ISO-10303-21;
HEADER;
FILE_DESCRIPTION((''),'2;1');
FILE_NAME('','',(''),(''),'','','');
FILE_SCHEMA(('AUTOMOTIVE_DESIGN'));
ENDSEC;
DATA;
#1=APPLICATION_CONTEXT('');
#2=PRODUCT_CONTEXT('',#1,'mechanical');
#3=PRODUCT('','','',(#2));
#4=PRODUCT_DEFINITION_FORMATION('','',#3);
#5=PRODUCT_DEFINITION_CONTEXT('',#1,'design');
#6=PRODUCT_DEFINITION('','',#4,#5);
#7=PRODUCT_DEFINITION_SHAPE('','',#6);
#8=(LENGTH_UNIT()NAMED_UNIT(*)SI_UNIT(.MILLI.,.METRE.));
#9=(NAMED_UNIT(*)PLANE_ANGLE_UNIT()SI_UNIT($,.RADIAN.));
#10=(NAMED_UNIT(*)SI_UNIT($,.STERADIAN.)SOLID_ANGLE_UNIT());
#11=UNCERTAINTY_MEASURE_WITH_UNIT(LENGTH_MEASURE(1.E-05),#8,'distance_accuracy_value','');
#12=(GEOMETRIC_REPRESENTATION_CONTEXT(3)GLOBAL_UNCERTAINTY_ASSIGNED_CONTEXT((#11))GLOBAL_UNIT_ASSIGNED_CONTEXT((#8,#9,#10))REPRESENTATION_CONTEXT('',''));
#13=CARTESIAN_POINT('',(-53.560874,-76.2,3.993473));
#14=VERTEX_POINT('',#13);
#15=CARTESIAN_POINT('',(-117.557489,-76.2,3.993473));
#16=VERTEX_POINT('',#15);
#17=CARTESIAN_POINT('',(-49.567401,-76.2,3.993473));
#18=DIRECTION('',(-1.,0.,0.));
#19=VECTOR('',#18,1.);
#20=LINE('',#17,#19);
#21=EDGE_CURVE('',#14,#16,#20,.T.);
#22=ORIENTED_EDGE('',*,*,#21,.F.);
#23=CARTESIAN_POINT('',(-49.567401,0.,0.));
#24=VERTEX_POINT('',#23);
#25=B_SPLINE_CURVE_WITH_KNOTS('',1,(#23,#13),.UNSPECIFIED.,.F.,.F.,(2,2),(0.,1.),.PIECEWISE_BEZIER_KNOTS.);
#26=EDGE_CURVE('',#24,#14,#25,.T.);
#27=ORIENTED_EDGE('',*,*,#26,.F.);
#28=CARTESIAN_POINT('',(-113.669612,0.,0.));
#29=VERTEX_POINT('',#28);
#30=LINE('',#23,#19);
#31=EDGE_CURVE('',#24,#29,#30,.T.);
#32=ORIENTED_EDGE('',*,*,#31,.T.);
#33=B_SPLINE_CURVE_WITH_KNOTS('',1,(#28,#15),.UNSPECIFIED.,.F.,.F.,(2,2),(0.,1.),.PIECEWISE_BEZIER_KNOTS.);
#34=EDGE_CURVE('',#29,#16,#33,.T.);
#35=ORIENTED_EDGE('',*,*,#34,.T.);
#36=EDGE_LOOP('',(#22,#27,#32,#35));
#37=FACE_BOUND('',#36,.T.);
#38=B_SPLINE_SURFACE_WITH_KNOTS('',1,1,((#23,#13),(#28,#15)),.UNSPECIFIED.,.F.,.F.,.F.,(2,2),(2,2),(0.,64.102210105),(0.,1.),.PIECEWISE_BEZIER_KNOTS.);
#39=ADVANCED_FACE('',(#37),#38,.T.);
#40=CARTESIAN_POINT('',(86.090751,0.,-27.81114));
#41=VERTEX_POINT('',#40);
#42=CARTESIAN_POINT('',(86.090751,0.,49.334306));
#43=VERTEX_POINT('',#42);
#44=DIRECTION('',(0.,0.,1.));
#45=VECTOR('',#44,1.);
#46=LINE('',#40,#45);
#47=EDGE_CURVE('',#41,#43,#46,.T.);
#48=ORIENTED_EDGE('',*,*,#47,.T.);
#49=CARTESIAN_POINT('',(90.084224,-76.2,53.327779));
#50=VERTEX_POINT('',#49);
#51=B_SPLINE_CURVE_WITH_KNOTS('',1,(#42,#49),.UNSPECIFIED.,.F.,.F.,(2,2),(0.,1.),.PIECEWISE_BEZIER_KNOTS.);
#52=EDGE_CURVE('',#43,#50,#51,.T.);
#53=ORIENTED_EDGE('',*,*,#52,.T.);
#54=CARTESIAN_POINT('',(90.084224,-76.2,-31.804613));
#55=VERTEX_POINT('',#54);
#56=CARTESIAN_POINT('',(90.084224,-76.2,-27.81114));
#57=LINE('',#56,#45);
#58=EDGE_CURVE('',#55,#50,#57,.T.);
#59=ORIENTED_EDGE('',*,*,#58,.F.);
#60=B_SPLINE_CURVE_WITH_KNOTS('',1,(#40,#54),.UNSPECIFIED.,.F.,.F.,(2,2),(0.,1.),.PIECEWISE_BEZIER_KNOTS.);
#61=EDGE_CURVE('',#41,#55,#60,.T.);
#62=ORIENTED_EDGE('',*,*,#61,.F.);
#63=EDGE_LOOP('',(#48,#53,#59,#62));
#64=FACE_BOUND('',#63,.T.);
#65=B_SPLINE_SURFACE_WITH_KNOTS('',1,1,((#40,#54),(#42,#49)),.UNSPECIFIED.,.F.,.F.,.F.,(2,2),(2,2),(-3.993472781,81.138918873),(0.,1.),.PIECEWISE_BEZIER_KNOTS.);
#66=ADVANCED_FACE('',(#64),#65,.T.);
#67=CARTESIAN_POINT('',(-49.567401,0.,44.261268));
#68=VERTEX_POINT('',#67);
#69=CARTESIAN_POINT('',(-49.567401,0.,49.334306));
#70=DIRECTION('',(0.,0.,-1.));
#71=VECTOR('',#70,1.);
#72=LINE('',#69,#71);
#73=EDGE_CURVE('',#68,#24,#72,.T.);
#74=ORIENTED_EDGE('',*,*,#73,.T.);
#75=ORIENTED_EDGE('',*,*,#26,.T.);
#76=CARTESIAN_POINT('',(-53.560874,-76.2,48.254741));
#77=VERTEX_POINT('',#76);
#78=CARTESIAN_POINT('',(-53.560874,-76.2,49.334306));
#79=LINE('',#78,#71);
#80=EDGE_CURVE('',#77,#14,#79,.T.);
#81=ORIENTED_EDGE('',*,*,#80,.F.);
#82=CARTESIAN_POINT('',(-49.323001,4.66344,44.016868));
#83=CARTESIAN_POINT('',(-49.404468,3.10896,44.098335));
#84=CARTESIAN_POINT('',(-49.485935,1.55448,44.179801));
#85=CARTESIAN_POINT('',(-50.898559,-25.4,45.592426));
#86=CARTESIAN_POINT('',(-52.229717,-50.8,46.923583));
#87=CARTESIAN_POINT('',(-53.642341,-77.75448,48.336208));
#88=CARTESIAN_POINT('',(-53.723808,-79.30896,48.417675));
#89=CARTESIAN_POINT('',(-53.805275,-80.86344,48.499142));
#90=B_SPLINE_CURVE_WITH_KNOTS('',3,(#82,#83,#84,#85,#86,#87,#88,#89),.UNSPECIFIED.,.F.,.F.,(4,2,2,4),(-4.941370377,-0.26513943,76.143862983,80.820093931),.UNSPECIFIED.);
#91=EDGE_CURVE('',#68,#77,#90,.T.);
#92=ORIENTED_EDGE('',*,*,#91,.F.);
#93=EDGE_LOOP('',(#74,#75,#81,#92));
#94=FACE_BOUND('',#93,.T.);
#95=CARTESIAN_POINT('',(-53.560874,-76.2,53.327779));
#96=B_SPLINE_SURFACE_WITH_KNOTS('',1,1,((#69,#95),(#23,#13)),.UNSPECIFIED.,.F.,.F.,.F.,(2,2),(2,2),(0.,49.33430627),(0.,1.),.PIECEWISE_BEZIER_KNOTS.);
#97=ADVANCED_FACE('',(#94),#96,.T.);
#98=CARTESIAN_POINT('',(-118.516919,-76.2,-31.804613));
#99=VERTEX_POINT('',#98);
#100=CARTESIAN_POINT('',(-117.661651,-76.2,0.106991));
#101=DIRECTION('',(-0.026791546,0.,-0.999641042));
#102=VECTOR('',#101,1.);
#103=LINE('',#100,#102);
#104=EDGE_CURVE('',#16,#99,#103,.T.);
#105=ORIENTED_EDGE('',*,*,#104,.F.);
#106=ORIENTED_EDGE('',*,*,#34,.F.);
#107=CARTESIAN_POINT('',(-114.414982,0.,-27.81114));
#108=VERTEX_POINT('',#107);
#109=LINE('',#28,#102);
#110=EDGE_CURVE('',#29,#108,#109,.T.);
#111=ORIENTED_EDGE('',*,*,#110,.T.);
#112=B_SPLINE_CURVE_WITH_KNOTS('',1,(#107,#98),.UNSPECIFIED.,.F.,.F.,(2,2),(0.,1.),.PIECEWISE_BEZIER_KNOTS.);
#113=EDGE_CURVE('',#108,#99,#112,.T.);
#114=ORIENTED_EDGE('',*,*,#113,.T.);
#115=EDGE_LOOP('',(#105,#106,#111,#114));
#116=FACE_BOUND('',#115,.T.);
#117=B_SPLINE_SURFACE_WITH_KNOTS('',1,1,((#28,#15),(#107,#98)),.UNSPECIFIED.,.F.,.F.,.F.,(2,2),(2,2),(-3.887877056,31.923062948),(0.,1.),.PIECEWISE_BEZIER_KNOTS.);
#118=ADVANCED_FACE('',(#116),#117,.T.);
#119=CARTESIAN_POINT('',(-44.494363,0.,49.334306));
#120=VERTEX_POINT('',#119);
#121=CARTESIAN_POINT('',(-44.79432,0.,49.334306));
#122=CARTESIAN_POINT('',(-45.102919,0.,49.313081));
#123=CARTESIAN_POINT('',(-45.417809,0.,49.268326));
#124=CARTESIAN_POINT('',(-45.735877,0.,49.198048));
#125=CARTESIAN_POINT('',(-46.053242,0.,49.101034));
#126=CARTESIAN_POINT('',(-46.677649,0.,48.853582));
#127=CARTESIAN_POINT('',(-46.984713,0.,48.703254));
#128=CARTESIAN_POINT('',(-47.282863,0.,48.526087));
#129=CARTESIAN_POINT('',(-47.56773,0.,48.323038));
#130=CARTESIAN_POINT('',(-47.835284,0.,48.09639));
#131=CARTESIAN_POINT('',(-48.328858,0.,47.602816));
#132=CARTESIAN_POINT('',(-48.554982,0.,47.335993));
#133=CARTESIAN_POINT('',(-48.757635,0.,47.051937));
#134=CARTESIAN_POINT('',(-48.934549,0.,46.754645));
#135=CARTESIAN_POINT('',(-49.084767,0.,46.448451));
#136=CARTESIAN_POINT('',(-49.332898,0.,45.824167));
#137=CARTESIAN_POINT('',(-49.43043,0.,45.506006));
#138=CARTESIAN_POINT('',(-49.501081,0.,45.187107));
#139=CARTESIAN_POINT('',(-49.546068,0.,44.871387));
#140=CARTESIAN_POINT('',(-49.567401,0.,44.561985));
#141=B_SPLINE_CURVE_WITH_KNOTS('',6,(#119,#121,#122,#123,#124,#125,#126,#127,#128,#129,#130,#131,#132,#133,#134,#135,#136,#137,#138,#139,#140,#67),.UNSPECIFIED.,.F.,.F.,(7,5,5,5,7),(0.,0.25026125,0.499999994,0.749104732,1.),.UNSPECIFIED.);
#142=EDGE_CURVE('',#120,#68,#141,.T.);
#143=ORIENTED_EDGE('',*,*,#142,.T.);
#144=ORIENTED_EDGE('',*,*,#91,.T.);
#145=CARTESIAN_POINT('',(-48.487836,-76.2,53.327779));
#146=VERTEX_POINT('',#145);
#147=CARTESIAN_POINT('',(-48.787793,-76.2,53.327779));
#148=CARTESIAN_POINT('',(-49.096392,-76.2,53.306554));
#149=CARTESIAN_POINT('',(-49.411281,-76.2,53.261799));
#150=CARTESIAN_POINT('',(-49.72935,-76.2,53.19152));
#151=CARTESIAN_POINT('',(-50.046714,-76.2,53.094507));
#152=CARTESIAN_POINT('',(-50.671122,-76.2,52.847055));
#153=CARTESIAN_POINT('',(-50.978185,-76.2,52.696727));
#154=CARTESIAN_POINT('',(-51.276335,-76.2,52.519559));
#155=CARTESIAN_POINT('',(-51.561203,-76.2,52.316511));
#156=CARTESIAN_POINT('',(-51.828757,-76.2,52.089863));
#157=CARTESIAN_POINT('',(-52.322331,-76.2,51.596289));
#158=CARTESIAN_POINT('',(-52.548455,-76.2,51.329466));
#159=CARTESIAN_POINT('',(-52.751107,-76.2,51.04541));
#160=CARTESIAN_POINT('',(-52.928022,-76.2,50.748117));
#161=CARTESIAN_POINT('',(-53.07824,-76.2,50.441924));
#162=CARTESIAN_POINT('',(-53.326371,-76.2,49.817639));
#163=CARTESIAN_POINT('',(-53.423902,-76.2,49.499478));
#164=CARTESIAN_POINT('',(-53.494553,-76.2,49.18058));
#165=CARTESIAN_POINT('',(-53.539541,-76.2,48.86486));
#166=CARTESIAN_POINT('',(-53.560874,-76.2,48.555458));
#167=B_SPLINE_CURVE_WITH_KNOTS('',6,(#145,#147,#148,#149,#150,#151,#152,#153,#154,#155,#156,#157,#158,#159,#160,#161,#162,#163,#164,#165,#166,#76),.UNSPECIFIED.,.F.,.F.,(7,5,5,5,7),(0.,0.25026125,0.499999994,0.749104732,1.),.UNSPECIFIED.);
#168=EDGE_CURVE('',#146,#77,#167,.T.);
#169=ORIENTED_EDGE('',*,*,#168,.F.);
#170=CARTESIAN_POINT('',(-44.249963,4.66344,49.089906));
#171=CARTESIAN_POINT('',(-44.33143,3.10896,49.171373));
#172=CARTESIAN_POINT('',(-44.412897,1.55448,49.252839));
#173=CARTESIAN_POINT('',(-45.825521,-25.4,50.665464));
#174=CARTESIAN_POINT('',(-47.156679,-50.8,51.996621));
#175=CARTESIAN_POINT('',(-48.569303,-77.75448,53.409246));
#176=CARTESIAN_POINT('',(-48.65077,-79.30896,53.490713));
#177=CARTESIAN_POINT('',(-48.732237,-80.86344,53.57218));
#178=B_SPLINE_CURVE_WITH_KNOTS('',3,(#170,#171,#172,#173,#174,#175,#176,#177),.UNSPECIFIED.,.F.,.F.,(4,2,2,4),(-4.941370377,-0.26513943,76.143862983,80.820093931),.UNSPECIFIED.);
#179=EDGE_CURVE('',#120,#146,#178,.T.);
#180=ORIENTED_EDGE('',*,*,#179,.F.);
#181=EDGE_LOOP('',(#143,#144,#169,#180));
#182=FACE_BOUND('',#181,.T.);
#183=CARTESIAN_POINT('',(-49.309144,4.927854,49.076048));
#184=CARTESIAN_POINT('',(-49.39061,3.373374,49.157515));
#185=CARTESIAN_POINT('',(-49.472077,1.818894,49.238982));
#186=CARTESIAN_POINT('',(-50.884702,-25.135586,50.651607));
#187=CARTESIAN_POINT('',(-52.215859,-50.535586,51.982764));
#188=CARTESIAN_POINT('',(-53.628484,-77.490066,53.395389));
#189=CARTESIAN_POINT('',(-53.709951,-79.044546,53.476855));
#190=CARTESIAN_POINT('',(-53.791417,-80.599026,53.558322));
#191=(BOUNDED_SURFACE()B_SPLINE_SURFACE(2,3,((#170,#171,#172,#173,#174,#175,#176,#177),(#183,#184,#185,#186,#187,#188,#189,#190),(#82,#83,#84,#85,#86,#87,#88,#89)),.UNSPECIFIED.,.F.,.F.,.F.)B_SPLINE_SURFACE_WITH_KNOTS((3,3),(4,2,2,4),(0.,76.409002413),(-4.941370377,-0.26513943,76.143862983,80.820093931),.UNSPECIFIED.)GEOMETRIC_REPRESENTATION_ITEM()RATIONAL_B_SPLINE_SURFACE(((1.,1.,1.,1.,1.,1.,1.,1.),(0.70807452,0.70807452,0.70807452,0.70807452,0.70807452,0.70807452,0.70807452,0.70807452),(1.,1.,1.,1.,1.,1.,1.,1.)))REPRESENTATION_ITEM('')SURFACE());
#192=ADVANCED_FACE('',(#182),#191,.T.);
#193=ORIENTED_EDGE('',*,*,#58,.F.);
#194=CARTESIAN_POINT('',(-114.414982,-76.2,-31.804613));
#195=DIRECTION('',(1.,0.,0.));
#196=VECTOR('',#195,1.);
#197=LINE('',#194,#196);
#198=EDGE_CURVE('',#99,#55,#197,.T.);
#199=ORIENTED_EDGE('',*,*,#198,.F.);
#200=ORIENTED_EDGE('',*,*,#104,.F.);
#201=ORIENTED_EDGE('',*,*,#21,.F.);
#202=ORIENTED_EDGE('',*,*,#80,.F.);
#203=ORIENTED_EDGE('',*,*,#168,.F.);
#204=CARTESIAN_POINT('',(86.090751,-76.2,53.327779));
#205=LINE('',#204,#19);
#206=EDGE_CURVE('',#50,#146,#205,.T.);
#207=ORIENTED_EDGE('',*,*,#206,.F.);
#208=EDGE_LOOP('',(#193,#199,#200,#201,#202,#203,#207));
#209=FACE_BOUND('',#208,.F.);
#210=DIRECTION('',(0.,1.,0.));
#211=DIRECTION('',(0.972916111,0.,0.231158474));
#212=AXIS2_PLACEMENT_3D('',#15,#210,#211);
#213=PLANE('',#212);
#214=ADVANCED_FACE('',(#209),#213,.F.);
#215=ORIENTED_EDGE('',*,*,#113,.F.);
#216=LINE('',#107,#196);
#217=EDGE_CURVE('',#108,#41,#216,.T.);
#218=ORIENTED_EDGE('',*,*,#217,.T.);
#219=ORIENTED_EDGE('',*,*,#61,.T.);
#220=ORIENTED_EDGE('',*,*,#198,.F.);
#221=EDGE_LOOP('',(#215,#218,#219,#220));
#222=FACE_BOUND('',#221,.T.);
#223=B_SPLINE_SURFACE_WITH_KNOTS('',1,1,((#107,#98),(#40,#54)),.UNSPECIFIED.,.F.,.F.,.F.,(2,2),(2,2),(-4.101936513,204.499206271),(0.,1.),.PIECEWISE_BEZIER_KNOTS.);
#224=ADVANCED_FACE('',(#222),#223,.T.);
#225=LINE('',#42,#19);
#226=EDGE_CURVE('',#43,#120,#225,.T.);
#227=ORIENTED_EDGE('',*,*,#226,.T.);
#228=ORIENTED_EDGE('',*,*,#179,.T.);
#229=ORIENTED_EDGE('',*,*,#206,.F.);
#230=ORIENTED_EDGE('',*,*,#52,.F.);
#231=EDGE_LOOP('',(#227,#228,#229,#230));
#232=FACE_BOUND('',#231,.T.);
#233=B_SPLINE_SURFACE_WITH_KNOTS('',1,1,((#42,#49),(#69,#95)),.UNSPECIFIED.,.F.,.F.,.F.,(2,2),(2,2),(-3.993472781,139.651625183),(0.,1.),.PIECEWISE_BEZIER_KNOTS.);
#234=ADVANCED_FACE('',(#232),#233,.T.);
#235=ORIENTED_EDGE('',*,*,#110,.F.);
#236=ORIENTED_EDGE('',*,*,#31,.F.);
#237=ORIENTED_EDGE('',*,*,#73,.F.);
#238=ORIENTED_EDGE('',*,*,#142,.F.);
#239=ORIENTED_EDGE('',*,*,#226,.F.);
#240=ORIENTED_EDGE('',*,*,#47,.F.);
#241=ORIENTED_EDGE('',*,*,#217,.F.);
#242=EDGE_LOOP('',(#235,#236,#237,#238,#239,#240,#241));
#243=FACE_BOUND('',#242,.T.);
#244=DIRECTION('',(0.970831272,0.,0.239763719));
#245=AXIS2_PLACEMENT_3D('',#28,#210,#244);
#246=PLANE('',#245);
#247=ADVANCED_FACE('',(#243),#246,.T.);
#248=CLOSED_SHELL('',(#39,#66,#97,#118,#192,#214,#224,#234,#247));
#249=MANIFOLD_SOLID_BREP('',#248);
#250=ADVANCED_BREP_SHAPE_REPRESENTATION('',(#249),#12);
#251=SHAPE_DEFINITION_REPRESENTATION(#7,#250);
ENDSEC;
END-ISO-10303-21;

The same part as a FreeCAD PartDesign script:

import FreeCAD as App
import Part
import Sketcher
from FreeCAD import Vector


def edges_at(feature, points):
    """Names of the edges that pass closest to the given points."""
    edges = feature.Shape.Edges
    near = lambda p: min(range(len(edges)), key=lambda i: edges[i].distToShape(Part.Vertex(*p))[0])
    return sorted({f"Edge{near(p) + 1}" for p in points})

doc = App.newDocument("Part")
params = doc.addObject("Spreadsheet::Sheet", "Params")
for row, (alias, value) in enumerate([
    ("pad1_length", "3 in"),
    ("pad1_taper", "3 deg"),
    ("fillet_radius", "0.2 in"),
], start=1):
    params.set(f"A{row}", alias)
    params.set(f"B{row}", "=" + value)
    params.setAlias(f"B{row}", alias)

body = doc.addObject("PartDesign::Body", "Body")

# Sketch on XZ plane
sketch1 = body.newObject("Sketcher::SketchObject", "Sketch")
sketch1.AttachmentSupport = (doc.getObject("XZ_Plane"), [""])
sketch1.MapMode = "FlatFace"
sketch1.addGeometry(Part.LineSegment(Vector(-114, 0, 0), Vector(-114, -28, 0)), False)
sketch1.addGeometry(Part.LineSegment(Vector(-114, -28, 0), Vector(86, -28, 0)), False)
sketch1.addGeometry(Part.LineSegment(Vector(86, -28, 0), Vector(86, 49, 0)), False)
sketch1.addGeometry(Part.LineSegment(Vector(86, 49, 0), Vector(-50, 49, 0)), False)
sketch1.addGeometry(Part.LineSegment(Vector(-50, 49, 0), Vector(-50, 0, 0)), False)
sketch1.addGeometry(Part.LineSegment(Vector(-50, 0, 0), Vector(-114, 0, 0)), False)
sketch1.addConstraint(Sketcher.Constraint("Coincident", 0, 2, 1, 1))
sketch1.addConstraint(Sketcher.Constraint("Coincident", 1, 2, 2, 1))
sketch1.addConstraint(Sketcher.Constraint("Coincident", 2, 2, 3, 1))
sketch1.addConstraint(Sketcher.Constraint("Coincident", 3, 2, 4, 1))
sketch1.addConstraint(Sketcher.Constraint("Coincident", 4, 2, 5, 1))
sketch1.addConstraint(Sketcher.Constraint("Coincident", 5, 2, 0, 1))
sketch1.addConstraint(Sketcher.Constraint("Horizontal", 1))
sketch1.addConstraint(Sketcher.Constraint("Vertical", 2))
sketch1.addConstraint(Sketcher.Constraint("Horizontal", 3))
sketch1.addConstraint(Sketcher.Constraint("Vertical", 4))
sketch1.addConstraint(Sketcher.Constraint("Horizontal", 5))
sketch1.addConstraint(Sketcher.Constraint("PointOnObject", 4, 2, -1))
sketch1.addConstraint(Sketcher.Constraint("DistanceX", 5, 2, 5, 1, 64.10221))
sketch1.addConstraint(Sketcher.Constraint("DistanceX", 3, 2, -1, 1, 49.567401))
sketch1.addConstraint(Sketcher.Constraint("DistanceX", 1, 1, 1, 2, 200.505733))
sketch1.addConstraint(Sketcher.Constraint("DistanceX", 3, 2, 3, 1, 135.658152))
sketch1.addConstraint(Sketcher.Constraint("DistanceY", 2, 1, 2, 2, 77.145446))
sketch1.addConstraint(Sketcher.Constraint("DistanceY", 4, 2, 4, 1, 49.334306))
pad1 = body.newObject("PartDesign::Pad", "Pad")
pad1.Profile = sketch1
pad1.setExpression("Length", "Params.pad1_length")
pad1.setExpression("TaperAngle", "Params.pad1_taper")
doc.recompute()

fillet = body.newObject("PartDesign::Fillet", "Fillet")
fillet.Base = (pad1, edges_at(pad1, [(-51.564, -38.1, 51.331)]))
fillet.setExpression("Radius", "Params.fillet_radius")

doc.recompute()
